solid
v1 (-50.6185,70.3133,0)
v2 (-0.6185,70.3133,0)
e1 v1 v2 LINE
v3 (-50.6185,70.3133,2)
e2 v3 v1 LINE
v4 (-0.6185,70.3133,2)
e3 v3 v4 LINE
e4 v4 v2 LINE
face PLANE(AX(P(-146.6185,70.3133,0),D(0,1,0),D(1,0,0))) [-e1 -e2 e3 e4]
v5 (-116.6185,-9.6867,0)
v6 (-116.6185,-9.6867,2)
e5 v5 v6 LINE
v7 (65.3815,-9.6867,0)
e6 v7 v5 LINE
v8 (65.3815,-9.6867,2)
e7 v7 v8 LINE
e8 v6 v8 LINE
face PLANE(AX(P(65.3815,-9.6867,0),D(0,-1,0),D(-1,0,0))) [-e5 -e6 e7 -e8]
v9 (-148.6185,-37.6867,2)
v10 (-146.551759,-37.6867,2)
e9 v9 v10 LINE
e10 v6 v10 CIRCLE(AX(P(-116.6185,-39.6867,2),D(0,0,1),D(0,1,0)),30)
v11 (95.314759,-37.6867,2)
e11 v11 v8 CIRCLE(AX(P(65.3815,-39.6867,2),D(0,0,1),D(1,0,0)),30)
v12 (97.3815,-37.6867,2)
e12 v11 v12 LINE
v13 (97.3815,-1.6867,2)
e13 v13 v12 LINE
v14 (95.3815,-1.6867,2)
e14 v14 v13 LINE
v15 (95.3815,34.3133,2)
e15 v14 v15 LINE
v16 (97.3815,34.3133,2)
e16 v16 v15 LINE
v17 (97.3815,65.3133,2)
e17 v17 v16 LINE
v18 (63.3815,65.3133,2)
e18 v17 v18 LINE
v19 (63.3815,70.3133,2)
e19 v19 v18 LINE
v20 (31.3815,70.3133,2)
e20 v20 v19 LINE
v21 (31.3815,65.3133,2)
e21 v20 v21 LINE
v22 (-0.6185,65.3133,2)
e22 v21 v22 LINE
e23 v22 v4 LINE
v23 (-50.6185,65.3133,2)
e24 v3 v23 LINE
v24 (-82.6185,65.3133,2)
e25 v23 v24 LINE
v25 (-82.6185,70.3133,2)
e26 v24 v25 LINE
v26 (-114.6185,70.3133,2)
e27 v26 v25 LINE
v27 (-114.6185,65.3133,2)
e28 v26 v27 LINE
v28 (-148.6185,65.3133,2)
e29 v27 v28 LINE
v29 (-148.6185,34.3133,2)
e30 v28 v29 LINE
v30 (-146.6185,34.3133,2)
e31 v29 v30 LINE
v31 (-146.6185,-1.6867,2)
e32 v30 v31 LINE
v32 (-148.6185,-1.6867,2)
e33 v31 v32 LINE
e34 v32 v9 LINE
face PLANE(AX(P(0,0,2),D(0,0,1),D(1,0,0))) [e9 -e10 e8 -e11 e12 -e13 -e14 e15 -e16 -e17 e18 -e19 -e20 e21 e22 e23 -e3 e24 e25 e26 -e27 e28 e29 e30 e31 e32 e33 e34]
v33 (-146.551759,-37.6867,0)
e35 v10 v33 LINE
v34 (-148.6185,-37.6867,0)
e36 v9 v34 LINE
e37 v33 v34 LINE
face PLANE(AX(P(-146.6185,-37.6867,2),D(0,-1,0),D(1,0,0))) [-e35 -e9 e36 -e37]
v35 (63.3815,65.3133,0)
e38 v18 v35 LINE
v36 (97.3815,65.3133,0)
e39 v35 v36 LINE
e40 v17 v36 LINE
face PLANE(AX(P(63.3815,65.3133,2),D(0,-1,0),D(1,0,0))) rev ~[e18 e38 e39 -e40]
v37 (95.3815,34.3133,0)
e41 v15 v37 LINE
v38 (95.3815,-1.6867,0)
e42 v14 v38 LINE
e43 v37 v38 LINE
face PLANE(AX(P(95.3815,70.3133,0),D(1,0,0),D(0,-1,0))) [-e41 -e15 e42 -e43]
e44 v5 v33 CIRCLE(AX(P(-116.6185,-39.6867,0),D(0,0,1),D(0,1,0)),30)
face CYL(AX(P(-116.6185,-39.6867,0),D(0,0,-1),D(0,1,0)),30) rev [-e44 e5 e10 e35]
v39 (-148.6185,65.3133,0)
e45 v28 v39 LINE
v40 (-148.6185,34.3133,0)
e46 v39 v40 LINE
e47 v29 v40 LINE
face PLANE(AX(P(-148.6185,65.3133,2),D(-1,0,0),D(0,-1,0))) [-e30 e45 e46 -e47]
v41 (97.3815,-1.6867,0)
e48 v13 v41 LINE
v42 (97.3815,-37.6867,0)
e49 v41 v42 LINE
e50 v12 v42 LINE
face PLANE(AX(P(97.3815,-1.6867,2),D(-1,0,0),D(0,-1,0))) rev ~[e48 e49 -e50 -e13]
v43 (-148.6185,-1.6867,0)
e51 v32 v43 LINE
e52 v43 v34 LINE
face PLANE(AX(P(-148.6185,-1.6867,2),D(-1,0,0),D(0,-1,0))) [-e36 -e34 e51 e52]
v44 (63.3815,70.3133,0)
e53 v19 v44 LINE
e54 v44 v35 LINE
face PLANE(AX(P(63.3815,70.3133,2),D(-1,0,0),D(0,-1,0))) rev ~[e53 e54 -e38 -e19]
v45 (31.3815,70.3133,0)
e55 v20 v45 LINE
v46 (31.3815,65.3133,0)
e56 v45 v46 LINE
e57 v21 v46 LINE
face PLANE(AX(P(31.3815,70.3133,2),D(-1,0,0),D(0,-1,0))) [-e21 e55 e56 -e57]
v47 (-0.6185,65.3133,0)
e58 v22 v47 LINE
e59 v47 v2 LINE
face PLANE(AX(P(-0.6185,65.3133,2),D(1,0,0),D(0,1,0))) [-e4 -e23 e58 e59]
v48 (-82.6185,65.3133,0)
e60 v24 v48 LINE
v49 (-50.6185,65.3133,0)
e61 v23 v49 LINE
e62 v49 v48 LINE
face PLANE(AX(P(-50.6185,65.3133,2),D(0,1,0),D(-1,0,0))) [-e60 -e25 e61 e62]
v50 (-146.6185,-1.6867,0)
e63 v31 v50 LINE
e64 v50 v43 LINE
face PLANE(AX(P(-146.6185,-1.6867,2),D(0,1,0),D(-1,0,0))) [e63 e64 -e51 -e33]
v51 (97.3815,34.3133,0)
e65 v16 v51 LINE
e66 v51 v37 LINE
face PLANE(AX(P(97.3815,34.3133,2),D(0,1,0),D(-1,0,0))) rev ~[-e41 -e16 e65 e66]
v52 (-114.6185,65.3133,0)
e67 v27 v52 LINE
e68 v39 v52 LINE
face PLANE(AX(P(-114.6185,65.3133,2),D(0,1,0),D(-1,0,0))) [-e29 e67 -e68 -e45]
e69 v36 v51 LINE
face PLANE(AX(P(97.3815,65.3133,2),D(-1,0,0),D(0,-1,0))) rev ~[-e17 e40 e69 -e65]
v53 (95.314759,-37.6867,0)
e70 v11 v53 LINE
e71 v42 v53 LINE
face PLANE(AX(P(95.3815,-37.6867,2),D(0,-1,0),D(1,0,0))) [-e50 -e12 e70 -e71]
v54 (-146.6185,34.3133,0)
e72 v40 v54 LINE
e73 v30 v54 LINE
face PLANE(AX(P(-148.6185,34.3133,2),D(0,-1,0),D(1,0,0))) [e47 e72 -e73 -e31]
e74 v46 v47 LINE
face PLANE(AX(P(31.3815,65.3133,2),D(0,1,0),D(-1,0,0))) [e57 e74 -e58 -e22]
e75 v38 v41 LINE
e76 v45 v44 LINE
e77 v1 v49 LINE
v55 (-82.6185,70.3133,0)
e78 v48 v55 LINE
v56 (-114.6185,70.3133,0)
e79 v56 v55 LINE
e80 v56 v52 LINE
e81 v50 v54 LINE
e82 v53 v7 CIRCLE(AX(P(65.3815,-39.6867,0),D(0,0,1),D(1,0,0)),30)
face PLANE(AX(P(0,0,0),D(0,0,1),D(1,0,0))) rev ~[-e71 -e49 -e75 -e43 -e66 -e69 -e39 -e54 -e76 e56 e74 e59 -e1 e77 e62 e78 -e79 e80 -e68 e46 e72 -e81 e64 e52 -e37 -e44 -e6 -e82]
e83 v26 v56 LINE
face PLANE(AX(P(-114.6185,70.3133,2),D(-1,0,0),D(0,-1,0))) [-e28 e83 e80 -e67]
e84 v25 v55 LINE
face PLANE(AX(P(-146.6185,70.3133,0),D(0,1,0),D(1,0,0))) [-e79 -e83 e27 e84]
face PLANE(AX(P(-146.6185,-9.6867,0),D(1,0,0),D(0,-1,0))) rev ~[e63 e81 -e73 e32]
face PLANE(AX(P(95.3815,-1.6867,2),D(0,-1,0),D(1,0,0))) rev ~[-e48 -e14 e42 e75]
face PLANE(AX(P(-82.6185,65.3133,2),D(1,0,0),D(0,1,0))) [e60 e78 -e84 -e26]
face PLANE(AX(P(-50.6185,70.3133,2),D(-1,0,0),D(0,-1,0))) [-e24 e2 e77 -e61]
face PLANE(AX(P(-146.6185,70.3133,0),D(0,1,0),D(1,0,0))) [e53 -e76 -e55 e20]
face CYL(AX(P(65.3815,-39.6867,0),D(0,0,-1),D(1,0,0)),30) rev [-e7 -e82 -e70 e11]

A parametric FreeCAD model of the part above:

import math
import FreeCAD as App
import Part
import Sketcher

V = App.Vector

doc = App.newDocument("Part")
body = doc.addObject("PartDesign::Body", "Body")

# Sketch on XY plane
sketch1 = body.newObject("Sketcher::SketchObject", "Sketch")
sketch1.AttachmentSupport = (doc.getObject("XY_Plane"), [""])
sketch1.MapMode = "FlatFace"
sketch1.addGeometry([
    Part.LineSegment(V(95, 70, 0), V(-147, 70, 0)),  # 0
    Part.LineSegment(V(-147, 70, 0), V(-147, -40, 0)),  # 1
    Part.ArcOfCircle(Part.Circle(V(-117, -40, 0), V(0, 0, 1), 30), math.radians(90), math.radians(180)),  # 2
    Part.LineSegment(V(-117, -10, 0), V(65, -10, 0)),  # 3
    Part.ArcOfCircle(Part.Circle(V(65, -40, 0), V(0, 0, 1), 30), math.radians(0), math.radians(90)),  # 4
    Part.LineSegment(V(95, -40, 0), V(95, 70, 0)),  # 5
], False)
sketch1.addConstraint([
    Sketcher.Constraint("Coincident", 0, 2, 1, 1),
    Sketcher.Constraint("Tangent", 1, 2, 2, 2),
    Sketcher.Constraint("Tangent", 2, 1, 3, 1),
    Sketcher.Constraint("Tangent", 3, 2, 4, 2),
    Sketcher.Constraint("Tangent", 4, 1, 5, 1),
    Sketcher.Constraint("Coincident", 5, 2, 0, 1),
    Sketcher.Constraint("Horizontal", 0),
    Sketcher.Constraint("Vertical", 1),
    Sketcher.Constraint("Horizontal", 3),
    Sketcher.Constraint("Vertical", 5),
    Sketcher.Constraint("Equal", 2, 4),
    Sketcher.Constraint("Radius", 2, 30.0),
    Sketcher.Constraint("DistanceX", 0, 2, 0, 1, 242.0),
    Sketcher.Constraint("DistanceY", 2, 1, 0, 2, 80.0),
    Sketcher.Constraint("DistanceX", 2, 3, -1, 1, 116.6185),
    Sketcher.Constraint("DistanceY", 2, 3, -1, 1, 39.6867),
])
pad1 = body.newObject("PartDesign::Pad", "Pad")
pad1.Profile = sketch1
pad1.Length = 2

# Sketch on XY plane
sketch2 = body.newObject("Sketcher::SketchObject", "Sketch001")
sketch2.AttachmentSupport = (doc.getObject("XY_Plane"), [""])
sketch2.MapMode = "FlatFace"
sketch2.AttachmentOffset = App.Placement(V(0, 0, 2), App.Rotation())
sketch2.addGeometry([
    Part.LineSegment(V(95, 65, 0), V(95, 70, 0)),  # 0
    Part.LineSegment(V(95, 70, 0), V(63, 70, 0)),  # 1
    Part.LineSegment(V(63, 70, 0), V(63, 65, 0)),  # 2
    Part.LineSegment(V(63, 65, 0), V(95, 65, 0)),  # 3
    Part.LineSegment(V(-115, 65, 0), V(-115, 70, 0)),  # 4
    Part.LineSegment(V(-115, 70, 0), V(-147, 70, 0)),  # 5
    Part.LineSegment(V(-147, 70, 0), V(-147, 65, 0)),  # 6
    Part.LineSegment(V(-147, 65, 0), V(-115, 65, 0)),  # 7
    Part.LineSegment(V(-51, 65, 0), V(-51, 70, 0)),  # 8
    Part.LineSegment(V(-51, 70, 0), V(-83, 70, 0)),  # 9
    Part.LineSegment(V(-83, 70, 0), V(-83, 65, 0)),  # 10
    Part.LineSegment(V(-83, 65, 0), V(-51, 65, 0)),  # 11
    Part.LineSegment(V(31, 65, 0), V(31, 70, 0)),  # 12
    Part.LineSegment(V(31, 70, 0), V(-1, 70, 0)),  # 13
    Part.LineSegment(V(-1, 70, 0), V(-1, 65, 0)),  # 14
    Part.LineSegment(V(-1, 65, 0), V(31, 65, 0)),  # 15
], False)
sketch2.addConstraint([
    Sketcher.Constraint("Coincident", 0, 2, 1, 1),
    Sketcher.Constraint("Coincident", 1, 2, 2, 1),
    Sketcher.Constraint("Coincident", 2, 2, 3, 1),
    Sketcher.Constraint("Coincident", 3, 2, 0, 1),
    Sketcher.Constraint("Coincident", 4, 2, 5, 1),
    Sketcher.Constraint("Coincident", 5, 2, 6, 1),
    Sketcher.Constraint("Coincident", 6, 2, 7, 1),
    Sketcher.Constraint("Coincident", 7, 2, 4, 1),
    Sketcher.Constraint("Coincident", 8, 2, 9, 1),
    Sketcher.Constraint("Coincident", 9, 2, 10, 1),
    Sketcher.Constraint("Coincident", 10, 2, 11, 1),
    Sketcher.Constraint("Coincident", 11, 2, 8, 1),
    Sketcher.Constraint("Coincident", 12, 2, 13, 1),
    Sketcher.Constraint("Coincident", 13, 2, 14, 1),
    Sketcher.Constraint("Coincident", 14, 2, 15, 1),
    Sketcher.Constraint("Coincident", 15, 2, 12, 1),
    Sketcher.Constraint("Vertical", 0),
    Sketcher.Constraint("Horizontal", 1),
    Sketcher.Constraint("Vertical", 2),
    Sketcher.Constraint("Horizontal", 3),
    Sketcher.Constraint("Vertical", 4),
    Sketcher.Constraint("Horizontal", 5),
    Sketcher.Constraint("Vertical", 6),
    Sketcher.Constraint("Horizontal", 7),
    Sketcher.Constraint("Vertical", 8),
    Sketcher.Constraint("Horizontal", 9),
    Sketcher.Constraint("Vertical", 10),
    Sketcher.Constraint("Horizontal", 11),
    Sketcher.Constraint("Vertical", 12),
    Sketcher.Constraint("Horizontal", 13),
    Sketcher.Constraint("Vertical", 14),
    Sketcher.Constraint("Horizontal", 15),
    Sketcher.Constraint("Horizontal", 1, 2, 4, 2),
    Sketcher.Constraint("Horizontal", 3, 2, 6, 2),
    Sketcher.Constraint("Horizontal", 5, 2, 8, 2),
    Sketcher.Constraint("Horizontal", 7, 2, 10, 2),
    Sketcher.Constraint("Horizontal", 9, 2, 12, 2),
    Sketcher.Constraint("Horizontal", 11, 2, 14, 2),
    Sketcher.Constraint("Equal", 3, 5),
    Sketcher.Constraint("Equal", 7, 9),
    Sketcher.Constraint("Equal", 11, 13),
    Sketcher.Constraint("DistanceX", 1, 2, 1, 1, 32.0),
    Sketcher.Constraint("DistanceY", 0, 1, 0, 2, 5.0),
    Sketcher.Constraint("DistanceX", 4, 2, 9, 2, 32.0),
    Sketcher.Constraint("DistanceX", 12, 2, 1, 2, 32.0),
    Sketcher.Constraint("DistanceX", 8, 2, 13, 2, 50.0),
    Sketcher.Constraint("DistanceX", -1, 1, 0, 2, 95.3815),
    Sketcher.Constraint("DistanceY", -1, 1, 0, 2, 70.3133),
])
pocket1 = body.newObject("PartDesign::Pocket", "Pocket")
pocket1.Profile = sketch2
pocket1.Length = 2

# Sketch on XY plane
sketch3 = body.newObject("Sketcher::SketchObject", "Sketch002")
sketch3.AttachmentSupport = (doc.getObject("XY_Plane"), [""])
sketch3.MapMode = "FlatFace"
sketch3.AttachmentOffset = App.Placement(V(0, 0, 2), App.Rotation())
sketch3.addGeometry([
    Part.LineSegment(V(-146.6, -37.7, 0), V(-146.6, -1.7, 0)),  # 0
    Part.LineSegment(V(-146.6, -1.7, 0), V(-148.6, -1.7, 0)),  # 1
    Part.LineSegment(V(-148.6, -1.7, 0), V(-148.6, -37.7, 0)),  # 2
    Part.LineSegment(V(-148.6, -37.7, 0), V(-146.6, -37.7, 0)),  # 3
    Part.LineSegment(V(-146.6, 34.3, 0), V(-146.6, 65.3, 0)),  # 4
    Part.LineSegment(V(-146.6, 65.3, 0), V(-148.6, 65.3, 0)),  # 5
    Part.LineSegment(V(-148.6, 65.3, 0), V(-148.6, 34.3, 0)),  # 6
    Part.LineSegment(V(-148.6, 34.3, 0), V(-146.6, 34.3, 0)),  # 7
    Part.LineSegment(V(95.4, 65.3, 0), V(95.4, 34.3, 0)),  # 8
    Part.LineSegment(V(95.4, 34.3, 0), V(97.4, 34.3, 0)),  # 9
    Part.LineSegment(V(97.4, 34.3, 0), V(97.4, 65.3, 0)),  # 10
    Part.LineSegment(V(97.4, 65.3, 0), V(95.4, 65.3, 0)),  # 11
    Part.LineSegment(V(95.4, -1.7, 0), V(95.4, -37.7, 0)),  # 12
    Part.LineSegment(V(95.4, -37.7, 0), V(97.4, -37.7, 0)),  # 13
    Part.LineSegment(V(97.4, -37.7, 0), V(97.4, -1.7, 0)),  # 14
    Part.LineSegment(V(97.4, -1.7, 0), V(95.4, -1.7, 0)),  # 15
], False)
sketch3.addConstraint([
    Sketcher.Constraint("Coincident", 0, 2, 1, 1),
    Sketcher.Constraint("Coincident", 1, 2, 2, 1),
    Sketcher.Constraint("Coincident", 2, 2, 3, 1),
    Sketcher.Constraint("Coincident", 3, 2, 0, 1),
    Sketcher.Constraint("Coincident", 4, 2, 5, 1),
    Sketcher.Constraint("Coincident", 5, 2, 6, 1),
    Sketcher.Constraint("Coincident", 6, 2, 7, 1),
    Sketcher.Constraint("Coincident", 7, 2, 4, 1),
    Sketcher.Constraint("Coincident", 8, 2, 9, 1),
    Sketcher.Constraint("Coincident", 9, 2, 10, 1),
    Sketcher.Constraint("Coincident", 10, 2, 11, 1),
    Sketcher.Constraint("Coincident", 11, 2, 8, 1),
    Sketcher.Constraint("Coincident", 12, 2, 13, 1),
    Sketcher.Constraint("Coincident", 13, 2, 14, 1),
    Sketcher.Constraint("Coincident", 14, 2, 15, 1),
    Sketcher.Constraint("Coincident", 15, 2, 12, 1),
    Sketcher.Constraint("Vertical", 0),
    Sketcher.Constraint("Horizontal", 1),
    Sketcher.Constraint("Vertical", 2),
    Sketcher.Constraint("Horizontal", 3),
    Sketcher.Constraint("Vertical", 4),
    Sketcher.Constraint("Horizontal", 5),
    Sketcher.Constraint("Vertical", 6),
    Sketcher.Constraint("Horizontal", 7),
    Sketcher.Constraint("Vertical", 8),
    Sketcher.Constraint("Horizontal", 9),
    Sketcher.Constraint("Vertical", 10),
    Sketcher.Constraint("Horizontal", 11),
    Sketcher.Constraint("Vertical", 12),
    Sketcher.Constraint("Horizontal", 13),
    Sketcher.Constraint("Vertical", 14),
    Sketcher.Constraint("Horizontal", 15),
    Sketcher.Constraint("Horizontal", 7, 2, 8, 2),
    Sketcher.Constraint("Horizontal", 5, 2, 10, 2),
    Sketcher.Constraint("Horizontal", 3, 2, 12, 2),
    Sketcher.Constraint("Horizontal", 1, 2, 14, 2),
    Sketcher.Constraint("Vertical", 3, 2, 4, 2),
    Sketcher.Constraint("Vertical", 2, 2, 5, 2),
    Sketcher.Constraint("Vertical", 11, 2, 12, 2),
    Sketcher.Constraint("Vertical", 10, 2, 13, 2),
    Sketcher.Constraint("Equal", 7, 9),
    Sketcher.Constraint("DistanceX", 1, 2, 1, 1, 2.0),
    Sketcher.Constraint("DistanceY", 0, 1, 0, 2, 36.0),
    Sketcher.Constraint("DistanceY", 4, 1, 4, 2, 31.0),
    Sketcher.Constraint("DistanceY", 1, 2, 6, 2, 36.0),
    Sketcher.Constraint("DistanceX", 7, 2, 8, 2, 242.0),
    Sketcher.Constraint("DistanceX", 0, 2, -1, 1, 146.6185),
    Sketcher.Constraint("DistanceY", 0, 2, -1, 1, 1.6867),
])
pad2 = body.newObject("PartDesign::Pad", "Pad001")
pad2.Profile = sketch3
pad2.Length = 2
pad2.Reversed = True

# Sketch on XY plane
sketch4 = body.newObject("Sketcher::SketchObject", "Sketch003")
sketch4.AttachmentSupport = (doc.getObject("XY_Plane"), [""])
sketch4.MapMode = "FlatFace"
sketch4.AttachmentOffset = App.Placement(V(0, 0, 2), App.Rotation())
sketch4.addGeometry([
    Part.LineSegment(V(113, -38, 0), V(-149, -38, 0)),
    Part.LineSegment(V(-149, -38, 0), V(-149, -66, 0)),
    Part.LineSegment(V(-149, -66, 0), V(113, -66, 0)),
    Part.LineSegment(V(113, -66, 0), V(113, -38, 0)),
], False)
sketch4.addConstraint([
    Sketcher.Constraint("Coincident", 0, 2, 1, 1),
    Sketcher.Constraint("Coincident", 1, 2, 2, 1),
    Sketcher.Constraint("Coincident", 2, 2, 3, 1),
    Sketcher.Constraint("Coincident", 3, 2, 0, 1),
    Sketcher.Constraint("Horizontal", 0),
    Sketcher.Constraint("Vertical", 1),
    Sketcher.Constraint("Horizontal", 2),
    Sketcher.Constraint("Vertical", 3),
    Sketcher.Constraint("DistanceY", 1, 2, 1, 1, 27.95),
    Sketcher.Constraint("DistanceX", 0, 2, 0, 1, 261.5927),
    Sketcher.Constraint("DistanceX", 0, 2, -1, 1, 148.6185),
    Sketcher.Constraint("DistanceY", 0, 2, -1, 1, 37.6867),
])
pocket2 = body.newObject("PartDesign::Pocket", "Pocket001")
pocket2.Profile = sketch4
pocket2.Length = 2

doc.recompute()
